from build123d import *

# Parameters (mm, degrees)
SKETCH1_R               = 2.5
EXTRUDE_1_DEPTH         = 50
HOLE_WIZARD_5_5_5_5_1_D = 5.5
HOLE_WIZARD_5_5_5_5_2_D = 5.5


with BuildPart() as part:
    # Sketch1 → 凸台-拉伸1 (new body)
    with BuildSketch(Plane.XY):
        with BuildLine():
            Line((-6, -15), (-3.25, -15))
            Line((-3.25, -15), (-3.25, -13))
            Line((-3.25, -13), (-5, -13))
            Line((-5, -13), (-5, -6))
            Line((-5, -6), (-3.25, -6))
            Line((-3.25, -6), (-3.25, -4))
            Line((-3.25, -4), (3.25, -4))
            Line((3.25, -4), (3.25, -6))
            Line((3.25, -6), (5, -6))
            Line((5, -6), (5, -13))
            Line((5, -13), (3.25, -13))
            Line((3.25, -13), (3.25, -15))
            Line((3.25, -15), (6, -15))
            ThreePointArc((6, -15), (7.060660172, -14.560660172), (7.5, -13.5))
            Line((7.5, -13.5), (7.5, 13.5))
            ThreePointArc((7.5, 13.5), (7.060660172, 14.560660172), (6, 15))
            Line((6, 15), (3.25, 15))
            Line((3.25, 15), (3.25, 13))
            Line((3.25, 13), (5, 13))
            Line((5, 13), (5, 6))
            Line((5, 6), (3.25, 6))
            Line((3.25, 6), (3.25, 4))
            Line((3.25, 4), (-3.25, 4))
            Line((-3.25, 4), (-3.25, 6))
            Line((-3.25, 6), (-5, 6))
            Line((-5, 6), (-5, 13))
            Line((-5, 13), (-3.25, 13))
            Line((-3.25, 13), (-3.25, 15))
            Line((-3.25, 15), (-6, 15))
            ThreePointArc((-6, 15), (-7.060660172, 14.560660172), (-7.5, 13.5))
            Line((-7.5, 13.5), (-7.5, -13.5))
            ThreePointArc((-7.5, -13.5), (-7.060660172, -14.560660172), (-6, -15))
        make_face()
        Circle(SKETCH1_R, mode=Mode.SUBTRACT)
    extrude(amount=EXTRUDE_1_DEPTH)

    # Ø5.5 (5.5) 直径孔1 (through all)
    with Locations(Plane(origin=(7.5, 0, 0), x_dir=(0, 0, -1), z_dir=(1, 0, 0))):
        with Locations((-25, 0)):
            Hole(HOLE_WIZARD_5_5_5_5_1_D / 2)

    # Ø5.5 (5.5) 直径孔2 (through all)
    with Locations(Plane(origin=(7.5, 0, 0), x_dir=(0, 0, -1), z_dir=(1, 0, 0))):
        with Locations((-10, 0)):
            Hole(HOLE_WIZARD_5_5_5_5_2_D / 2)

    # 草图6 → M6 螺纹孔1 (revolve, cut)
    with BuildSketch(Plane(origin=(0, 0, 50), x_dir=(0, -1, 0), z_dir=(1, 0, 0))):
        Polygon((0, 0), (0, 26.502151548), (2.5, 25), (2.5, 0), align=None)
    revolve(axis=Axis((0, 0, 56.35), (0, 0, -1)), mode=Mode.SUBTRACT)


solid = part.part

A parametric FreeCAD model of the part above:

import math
import FreeCAD as App
import Part
import Sketcher
Q = App.Units.Quantity


def add_polygon(sketch, points):
    """Adds a closed chain of lines whose ends are joined by coincident constraints."""
    first, n = sketch.GeometryCount, len(points)
    for a, b in zip(points, points[1:] + points[:1]):
        sketch.addGeometry(Part.LineSegment(App.Vector(*a, 0), App.Vector(*b, 0)), False)
    for i in range(n):
        sketch.addConstraint(Sketcher.Constraint("Coincident", first + i, 2, first + (i + 1) % n, 1))

doc = App.newDocument("Part")
body = doc.addObject("PartDesign::Body", "Body")

# Sketch on XY plane
sketch1 = body.newObject("Sketcher::SketchObject", "Sketch")
sketch1.AttachmentSupport = (doc.getObject("XY_Plane"), [""])
sketch1.MapMode = "FlatFace"
sketch1.addGeometry([
    Part.LineSegment(App.Vector(-6, -15, 0), App.Vector(-3.2, -15, 0)),  # 0
    Part.LineSegment(App.Vector(-3.2, -15, 0), App.Vector(-3.2, -13, 0)),  # 1
    Part.LineSegment(App.Vector(-3.2, -13, 0), App.Vector(-5, -13, 0)),  # 2
    Part.LineSegment(App.Vector(-5, -13, 0), App.Vector(-5, -6, 0)),  # 3
    Part.LineSegment(App.Vector(-5, -6, 0), App.Vector(-3.2, -6, 0)),  # 4
    Part.LineSegment(App.Vector(-3.2, -6, 0), App.Vector(-3.2, -4, 0)),  # 5
    Part.LineSegment(App.Vector(-3.2, -4, 0), App.Vector(3.2, -4, 0)),  # 6
    Part.LineSegment(App.Vector(3.2, -4, 0), App.Vector(3.2, -6, 0)),  # 7
    Part.LineSegment(App.Vector(3.2, -6, 0), App.Vector(5, -6, 0)),  # 8
    Part.LineSegment(App.Vector(5, -6, 0), App.Vector(5, -13, 0)),  # 9
    Part.LineSegment(App.Vector(5, -13, 0), App.Vector(3.2, -13, 0)),  # 10
    Part.LineSegment(App.Vector(3.2, -13, 0), App.Vector(3.2, -15, 0)),  # 11
    Part.LineSegment(App.Vector(3.2, -15, 0), App.Vector(6, -15, 0)),  # 12
    Part.ArcOfCircle(Part.Circle(App.Vector(6, -13.5, 0), App.Vector(0, 0, 1), 1.5), math.radians(-90), math.radians(0)),  # 13
    Part.LineSegment(App.Vector(7.5, -13.5, 0), App.Vector(7.5, 13.5, 0)),  # 14
    Part.ArcOfCircle(Part.Circle(App.Vector(6, 13.5, 0), App.Vector(0, 0, 1), 1.5), math.radians(0), math.radians(90)),  # 15
    Part.LineSegment(App.Vector(6, 15, 0), App.Vector(3.2, 15, 0)),  # 16
    Part.LineSegment(App.Vector(3.2, 15, 0), App.Vector(3.2, 13, 0)),  # 17
    Part.LineSegment(App.Vector(3.2, 13, 0), App.Vector(5, 13, 0)),  # 18
    Part.LineSegment(App.Vector(5, 13, 0), App.Vector(5, 6, 0)),  # 19
    Part.LineSegment(App.Vector(5, 6, 0), App.Vector(3.2, 6, 0)),  # 20
    Part.LineSegment(App.Vector(3.2, 6, 0), App.Vector(3.2, 4, 0)),  # 21
    Part.LineSegment(App.Vector(3.2, 4, 0), App.Vector(-3.2, 4, 0)),  # 22
    Part.LineSegment(App.Vector(-3.2, 4, 0), App.Vector(-3.2, 6, 0)),  # 23
    Part.LineSegment(App.Vector(-3.2, 6, 0), App.Vector(-5, 6, 0)),  # 24
    Part.LineSegment(App.Vector(-5, 6, 0), App.Vector(-5, 13, 0)),  # 25
    Part.LineSegment(App.Vector(-5, 13, 0), App.Vector(-3.2, 13, 0)),  # 26
    Part.LineSegment(App.Vector(-3.2, 13, 0), App.Vector(-3.2, 15, 0)),  # 27
    Part.LineSegment(App.Vector(-3.2, 15, 0), App.Vector(-6, 15, 0)),  # 28
    Part.ArcOfCircle(Part.Circle(App.Vector(-6, 13.5, 0), App.Vector(0, 0, 1), 1.5), math.radians(90), math.radians(180)),  # 29
    Part.LineSegment(App.Vector(-7.5, 13.5, 0), App.Vector(-7.5, -13.5, 0)),  # 30
    Part.ArcOfCircle(Part.Circle(App.Vector(-6, -13.5, 0), App.Vector(0, 0, 1), 1.5), math.radians(180), math.radians(270)),  # 31
    Part.Circle(App.Vector(0, 0, 0), App.Vector(0, 0, 1), 2.5),  # 32
], False)
sketch1.addConstraint([
    Sketcher.Constraint("Coincident", 0, 2, 1, 1),
    Sketcher.Constraint("Coincident", 1, 2, 2, 1),
    Sketcher.Constraint("Coincident", 2, 2, 3, 1),
    Sketcher.Constraint("Coincident", 3, 2, 4, 1),
    Sketcher.Constraint("Coincident", 4, 2, 5, 1),
    Sketcher.Constraint("Coincident", 5, 2, 6, 1),
    Sketcher.Constraint("Coincident", 6, 2, 7, 1),
    Sketcher.Constraint("Coincident", 7, 2, 8, 1),
    Sketcher.Constraint("Coincident", 8, 2, 9, 1),
    Sketcher.Constraint("Coincident", 9, 2, 10, 1),
    Sketcher.Constraint("Coincident", 10, 2, 11, 1),
    Sketcher.Constraint("Coincident", 11, 2, 12, 1),
    Sketcher.Constraint("Tangent", 12, 2, 13, 1),
    Sketcher.Constraint("Tangent", 13, 2, 14, 1),
    Sketcher.Constraint("Tangent", 14, 2, 15, 1),
    Sketcher.Constraint("Tangent", 15, 2, 16, 1),
    Sketcher.Constraint("Coincident", 16, 2, 17, 1),
    Sketcher.Constraint("Coincident", 17, 2, 18, 1),
    Sketcher.Constraint("Coincident", 18, 2, 19, 1),
    Sketcher.Constraint("Coincident", 19, 2, 20, 1),
    Sketcher.Constraint("Coincident", 20, 2, 21, 1),
    Sketcher.Constraint("Coincident", 21, 2, 22, 1),
    Sketcher.Constraint("Coincident", 22, 2, 23, 1),
    Sketcher.Constraint("Coincident", 23, 2, 24, 1),
    Sketcher.Constraint("Coincident", 24, 2, 25, 1),
    Sketcher.Constraint("Coincident", 25, 2, 26, 1),
    Sketcher.Constraint("Coincident", 26, 2, 27, 1),
    Sketcher.Constraint("Coincident", 27, 2, 28, 1),
    Sketcher.Constraint("Tangent", 28, 2, 29, 1),
    Sketcher.Constraint("Tangent", 29, 2, 30, 1),
    Sketcher.Constraint("Tangent", 30, 2, 31, 1),
    Sketcher.Constraint("Tangent", 31, 2, 0, 1),
    Sketcher.Constraint("Horizontal", 0),
    Sketcher.Constraint("Vertical", 1),
    Sketcher.Constraint("Horizontal", 2),
    Sketcher.Constraint("Vertical", 3),
    Sketcher.Constraint("Horizontal", 4),
    Sketcher.Constraint("Vertical", 5),
    Sketcher.Constraint("Horizontal", 6),
    Sketcher.Constraint("Vertical", 7),
    Sketcher.Constraint("Horizontal", 8),
    Sketcher.Constraint("Vertical", 9),
    Sketcher.Constraint("Horizontal", 10),
    Sketcher.Constraint("Vertical", 11),
    Sketcher.Constraint("Horizontal", 12),
    Sketcher.Constraint("Vertical", 14),
    Sketcher.Constraint("Horizontal", 16),
    Sketcher.Constraint("Vertical", 17),
    Sketcher.Constraint("Horizontal", 18),
    Sketcher.Constraint("Vertical", 19),
    Sketcher.Constraint("Horizontal", 20),
    Sketcher.Constraint("Vertical", 21),
    Sketcher.Constraint("Horizontal", 22),
    Sketcher.Constraint("Vertical", 23),
    Sketcher.Constraint("Horizontal", 24),
    Sketcher.Constraint("Vertical", 25),
    Sketcher.Constraint("Horizontal", 26),
    Sketcher.Constraint("Vertical", 27),
    Sketcher.Constraint("Horizontal", 28),
    Sketcher.Constraint("Vertical", 30),
    Sketcher.Constraint("Coincident", 32, 3, -1, 1),
    Sketcher.Constraint("Equal", 13, 15),
    Sketcher.Constraint("Equal", 15, 29),
    Sketcher.Constraint("Equal", 29, 31),
    Sketcher.Constraint("Symmetric", 13, 3, 29, 3, -1, 1),
    Sketcher.Constraint("Symmetric", 0, 2, 16, 2, -1, 1),
    Sketcher.Constraint("Symmetric", 2, 2, 18, 2, -1, 1),
    Sketcher.Constraint("Symmetric", 4, 2, 20, 2, -1, 1),
    Sketcher.Constraint("Symmetric", 6, 2, 22, 2, -1, 1),
    Sketcher.Constraint("Symmetric", 8, 2, 24, 2, -1, 1),
    Sketcher.Constraint("Symmetric", 10, 2, 26, 2, -1, 1),
    Sketcher.Constraint("Symmetric", 4, 2, 7, 2, -2),
    Sketcher.Constraint("Symmetric", 2, 2, 9, 2, -2),
    Sketcher.Constraint("Symmetric", 0, 2, 11, 2, -2),
    Sketcher.Constraint("Vertical", 1, 2, 4, 2),
    Sketcher.Constraint("Equal", 1, 5),
    Sketcher.Constraint("Diameter", 32, Q("5 mm")),
    Sketcher.Constraint("Radius", 13, Q("1.5 mm")),
    Sketcher.Constraint("DistanceY", 1, 1, 1, 2, Q("2 mm")),
    Sketcher.Constraint("DistanceY", 3, 1, 3, 2, Q("7 mm")),
    Sketcher.Constraint("DistanceY", 14, 1, 14, 2, Q("27 mm")),
    Sketcher.Constraint("DistanceX", 6, 1, 6, 2, Q("6.5 mm")),
    Sketcher.Constraint("DistanceX", -1, 1, 13, 3, Q("6 mm")),
    Sketcher.Constraint("DistanceX", 2, 2, -1, 1, Q("5 mm")),
])
pad1 = body.newObject("PartDesign::Pad", "Pad")
pad1.Profile = sketch1
pad1.Length = 50

# Sketch on YZ plane
sketch2 = body.newObject("Sketcher::SketchObject", "Sketch001")
sketch2.AttachmentSupport = (doc.getObject("YZ_Plane"), [""])
sketch2.MapMode = "FlatFace"
sketch2.AttachmentOffset = App.Placement(App.Vector(0, 0, 7.5), App.Rotation())
sketch2.addGeometry(Part.Circle(App.Vector(0, 25, 0), App.Vector(0, 0, 1), 2.8), False)
sketch2.addConstraint([
    Sketcher.Constraint("PointOnObject", 0, 3, -2),
    Sketcher.Constraint("Diameter", 0, Q("5.5 mm")),
    Sketcher.Constraint("DistanceY", -1, 1, 0, 3, Q("25 mm")),
])
doc.recompute()
hole = body.newObject("PartDesign::Hole", "Hole")
hole.Profile = sketch2
hole.ThreadType = "None"
hole.Diameter = 5.5
hole.DepthType = "ThroughAll"

# Sketch on YZ plane
sketch3 = body.newObject("Sketcher::SketchObject", "Sketch002")
sketch3.AttachmentSupport = (doc.getObject("YZ_Plane"), [""])
sketch3.MapMode = "FlatFace"
sketch3.AttachmentOffset = App.Placement(App.Vector(0, 0, 7.5), App.Rotation())
sketch3.addGeometry(Part.Circle(App.Vector(0, 10, 0), App.Vector(0, 0, 1), 2.8), False)
sketch3.addConstraint([
    Sketcher.Constraint("PointOnObject", 0, 3, -2),
    Sketcher.Constraint("Diameter", 0, Q("5.5 mm")),
    Sketcher.Constraint("DistanceY", -1, 1, 0, 3, Q("10 mm")),
])
doc.recompute()
hole2 = body.newObject("PartDesign::Hole", "Hole001")
hole2.Profile = sketch3
hole2.ThreadType = "None"
hole2.Diameter = 5.5
hole2.DepthType = "ThroughAll"

# Sketch on YZ plane
sketch4 = body.newObject("Sketcher::SketchObject", "Sketch003")
sketch4.AttachmentSupport = (doc.getObject("YZ_Plane"), [""])
sketch4.MapMode = "FlatFace"
add_polygon(sketch4, [(0, 23.5), (0, 50), (-2.5, 50), (-2.5, 25)])  # lines 0-3
sketch4.addConstraint([
    Sketcher.Constraint("Vertical", 0),
    Sketcher.Constraint("Horizontal", 1),
    Sketcher.Constraint("Vertical", 2),
    Sketcher.Constraint("PointOnObject", 0, 2, -2),
    Sketcher.Constraint("DistanceY", 2, 2, 2, 1, Q("25 mm")),
    Sketcher.Constraint("Angle", 3, Q("-31 deg")),
    Sketcher.Constraint("DistanceX", 1, 2, 1, 1, Q("2.5 mm")),
    Sketcher.Constraint("DistanceY", -1, 1, 0, 2, Q("50 mm")),
])
groove = body.newObject("PartDesign::Groove", "Groove")
groove.Profile = sketch4
groove.ReferenceAxis = (sketch4, ["V_Axis"])
groove.Angle = 360

doc.recompute()
